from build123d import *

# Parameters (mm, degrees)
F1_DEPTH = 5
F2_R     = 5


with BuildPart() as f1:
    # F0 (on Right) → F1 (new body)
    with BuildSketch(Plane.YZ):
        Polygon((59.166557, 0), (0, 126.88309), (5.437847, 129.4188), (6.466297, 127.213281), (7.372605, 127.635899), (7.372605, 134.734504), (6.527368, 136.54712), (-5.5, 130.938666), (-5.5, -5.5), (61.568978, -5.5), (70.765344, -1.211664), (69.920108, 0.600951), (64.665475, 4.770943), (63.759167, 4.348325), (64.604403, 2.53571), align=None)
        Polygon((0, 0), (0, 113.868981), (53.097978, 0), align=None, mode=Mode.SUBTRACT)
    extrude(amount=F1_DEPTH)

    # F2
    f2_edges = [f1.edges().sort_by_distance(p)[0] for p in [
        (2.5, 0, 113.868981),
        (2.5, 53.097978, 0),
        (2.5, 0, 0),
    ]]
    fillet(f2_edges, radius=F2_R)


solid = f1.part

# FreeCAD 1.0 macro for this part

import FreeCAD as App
import Part
import Sketcher
Q = App.Units.Quantity


def edges_at(feature, points):
    """Names of the edges that pass closest to the given points."""
    edges = feature.Shape.Edges
    near = lambda p: min(range(len(edges)), key=lambda i: edges[i].distToShape(Part.Vertex(*p))[0])
    return sorted({f"Edge{near(p) + 1}" for p in points})

doc = App.newDocument("Part")
body = doc.addObject("PartDesign::Body", "Body")

# Sketch on YZ plane
sketch1 = doc.addObject("Sketcher::SketchObject", "Sketch")
body.addObject(sketch1)
sketch1.AttachmentSupport = (doc.YZ_Plane, [""])
sketch1.MapMode = "FlatFace"
sketch1.addGeometry([
    Part.LineSegment(App.Vector(59.2, 0, 0), App.Vector(0, 126.9, 0)),  # 0
    Part.LineSegment(App.Vector(0, 126.9, 0), App.Vector(5.4, 129.4, 0)),  # 1
    Part.LineSegment(App.Vector(5.4, 129.4, 0), App.Vector(6.5, 127.2, 0)),  # 2
    Part.LineSegment(App.Vector(6.5, 127.2, 0), App.Vector(7.4, 127.6, 0)),  # 3
    Part.LineSegment(App.Vector(7.4, 127.6, 0), App.Vector(7.4, 134.7, 0)),  # 4
    Part.LineSegment(App.Vector(7.4, 134.7, 0), App.Vector(6.5, 136.5, 0)),  # 5
    Part.LineSegment(App.Vector(6.5, 136.5, 0), App.Vector(-5.5, 130.9, 0)),  # 6
    Part.LineSegment(App.Vector(-5.5, 130.9, 0), App.Vector(-5.5, -5.5, 0)),  # 7
    Part.LineSegment(App.Vector(-5.5, -5.5, 0), App.Vector(61.6, -5.5, 0)),  # 8
    Part.LineSegment(App.Vector(61.6, -5.5, 0), App.Vector(70.8, -1.2, 0)),  # 9
    Part.LineSegment(App.Vector(70.8, -1.2, 0), App.Vector(69.9, 0.6, 0)),  # 10
    Part.LineSegment(App.Vector(69.9, 0.6, 0), App.Vector(64.7, 4.8, 0)),  # 11
    Part.LineSegment(App.Vector(64.7, 4.8, 0), App.Vector(63.8, 4.3, 0)),  # 12
    Part.LineSegment(App.Vector(63.8, 4.3, 0), App.Vector(64.6, 2.5, 0)),  # 13
    Part.LineSegment(App.Vector(64.6, 2.5, 0), App.Vector(59.2, 0, 0)),  # 14
    Part.LineSegment(App.Vector(53.1, 0, 0), App.Vector(0, 0, 0)),  # 15
    Part.LineSegment(App.Vector(0, 0, 0), App.Vector(0, 113.9, 0)),  # 16
    Part.LineSegment(App.Vector(0, 113.9, 0), App.Vector(53.1, 0, 0)),  # 17
], False)
sketch1.addConstraint([
    Sketcher.Constraint("Coincident", 0, 2, 1, 1),
    Sketcher.Constraint("Coincident", 1, 2, 2, 1),
    Sketcher.Constraint("Coincident", 2, 2, 3, 1),
    Sketcher.Constraint("Coincident", 3, 2, 4, 1),
    Sketcher.Constraint("Coincident", 4, 2, 5, 1),
    Sketcher.Constraint("Coincident", 5, 2, 6, 1),
    Sketcher.Constraint("Coincident", 6, 2, 7, 1),
    Sketcher.Constraint("Coincident", 7, 2, 8, 1),
    Sketcher.Constraint("Coincident", 8, 2, 9, 1),
    Sketcher.Constraint("Coincident", 9, 2, 10, 1),
    Sketcher.Constraint("Coincident", 10, 2, 11, 1),
    Sketcher.Constraint("Coincident", 11, 2, 12, 1),
    Sketcher.Constraint("Coincident", 12, 2, 13, 1),
    Sketcher.Constraint("Coincident", 13, 2, 14, 1),
    Sketcher.Constraint("Coincident", 14, 2, 0, 1),
    Sketcher.Constraint("Coincident", 15, 2, 16, 1),
    Sketcher.Constraint("Coincident", 16, 2, 17, 1),
    Sketcher.Constraint("Coincident", 17, 2, 15, 1),
    Sketcher.Constraint("Vertical", 4),
    Sketcher.Constraint("Vertical", 7),
    Sketcher.Constraint("Horizontal", 8),
    Sketcher.Constraint("Horizontal", 15),
    Sketcher.Constraint("Vertical", 16),
    Sketcher.Constraint("Coincident", 15, 2, -1, 1),
    Sketcher.Constraint("PointOnObject", 0, 2, -2),
    Sketcher.Constraint("PointOnObject", 14, 2, -1),
    Sketcher.Constraint("Perpendicular", 0, 1),
    Sketcher.Constraint("Perpendicular", 1, 2),
    Sketcher.Constraint("Perpendicular", 2, 3),
    Sketcher.Constraint("Perpendicular", 3, 5),
    Sketcher.Constraint("Perpendicular", 5, 6),
    Sketcher.Constraint("Parallel", 6, 9),
    Sketcher.Constraint("Perpendicular", 9, 10),
    Sketcher.Constraint("Perpendicular", 10, 12),
    Sketcher.Constraint("Perpendicular", 12, 13),
    Sketcher.Constraint("Perpendicular", 13, 14),
    Sketcher.Constraint("Perpendicular", 14, 17),
    Sketcher.Constraint("Equal", 5, 10),
    Sketcher.Constraint("Equal", 3, 12),
    Sketcher.Constraint("Equal", 10, 13),
    Sketcher.Constraint("Equal", 1, 14),
    Sketcher.Constraint("Angle", 0, Q("115 deg")),
    Sketcher.Constraint("Distance", 0, Q("140 mm")),
    Sketcher.Constraint("Distance", 1, Q("6 mm")),
    Sketcher.Constraint("Distance", 3, Q("1 mm")),
    Sketcher.Constraint("Distance", 5, Q("2.000001 mm")),
    Sketcher.Constraint("DistanceX", 6, 2, -1, 1, Q("5.5 mm")),
    Sketcher.Constraint("DistanceY", 7, 2, -1, 1, Q("5.5 mm")),
    Sketcher.Constraint("DistanceX", 17, 2, 8, 2, Q("8.471 mm")),
    Sketcher.Constraint("DistanceX", 8, 1, 8, 2, Q("67.068978 mm")),
    Sketcher.Constraint("DistanceY", -1, 1, 3, 2, Q("127.635899 mm")),
    Sketcher.Constraint("DistanceY", 4, 1, 4, 2, Q("7.098605 mm")),
    Sketcher.Constraint("DistanceX", -1, 1, 10, 2, Q("69.920108 mm")),
])
pad1 = doc.addObject("PartDesign::Pad", "Pad")
body.addObject(pad1)
pad1.Profile = sketch1
pad1.Length = 5
doc.recompute()

fillet = doc.addObject("PartDesign::Fillet", "Fillet")
body.addObject(fillet)
fillet.Base = (pad1, edges_at(pad1, [(2.5, 0, 113.869), (2.5, 53.098, 0), (2.5, 0, 0)]))
fillet.Radius = 5

doc.recompute()
